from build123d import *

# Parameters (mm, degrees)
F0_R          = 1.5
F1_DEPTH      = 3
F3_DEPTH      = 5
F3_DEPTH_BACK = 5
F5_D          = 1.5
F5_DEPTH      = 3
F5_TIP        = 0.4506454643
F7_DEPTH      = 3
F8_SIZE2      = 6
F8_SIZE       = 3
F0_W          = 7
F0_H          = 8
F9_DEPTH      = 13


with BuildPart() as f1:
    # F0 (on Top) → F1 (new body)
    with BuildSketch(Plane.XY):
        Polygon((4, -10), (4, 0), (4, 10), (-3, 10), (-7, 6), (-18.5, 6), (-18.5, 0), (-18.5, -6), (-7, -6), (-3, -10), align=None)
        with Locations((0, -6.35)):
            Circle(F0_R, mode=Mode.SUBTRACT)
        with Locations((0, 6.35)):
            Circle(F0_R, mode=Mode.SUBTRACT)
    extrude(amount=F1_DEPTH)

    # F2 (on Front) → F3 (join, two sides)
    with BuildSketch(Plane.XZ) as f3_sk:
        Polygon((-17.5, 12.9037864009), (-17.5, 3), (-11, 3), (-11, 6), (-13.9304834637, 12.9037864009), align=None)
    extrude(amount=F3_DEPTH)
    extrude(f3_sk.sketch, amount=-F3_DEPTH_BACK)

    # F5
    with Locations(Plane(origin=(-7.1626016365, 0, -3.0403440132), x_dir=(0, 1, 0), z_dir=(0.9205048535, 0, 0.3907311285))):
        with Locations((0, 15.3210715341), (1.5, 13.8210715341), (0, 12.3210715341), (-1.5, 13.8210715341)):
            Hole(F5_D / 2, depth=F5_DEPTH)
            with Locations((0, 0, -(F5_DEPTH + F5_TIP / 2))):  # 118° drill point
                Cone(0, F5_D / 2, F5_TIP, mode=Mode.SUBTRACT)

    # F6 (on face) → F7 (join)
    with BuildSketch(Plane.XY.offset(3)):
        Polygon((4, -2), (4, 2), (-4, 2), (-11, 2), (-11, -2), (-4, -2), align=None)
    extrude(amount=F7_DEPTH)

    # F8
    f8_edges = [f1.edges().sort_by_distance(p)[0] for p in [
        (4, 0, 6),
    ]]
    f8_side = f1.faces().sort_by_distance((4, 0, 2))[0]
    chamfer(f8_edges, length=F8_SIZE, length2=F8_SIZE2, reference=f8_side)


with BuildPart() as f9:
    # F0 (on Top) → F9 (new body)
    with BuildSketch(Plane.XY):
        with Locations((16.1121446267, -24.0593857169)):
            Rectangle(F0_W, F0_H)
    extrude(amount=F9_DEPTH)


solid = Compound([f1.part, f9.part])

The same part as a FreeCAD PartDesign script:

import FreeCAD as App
import Part
import Sketcher
from FreeCAD import Vector
Q = App.Units.Quantity


def edges_at(feature, points):
    """Names of the edges that pass closest to the given points."""
    edges = feature.Shape.Edges
    near = lambda p: min(range(len(edges)), key=lambda i: edges[i].distToShape(Part.Vertex(*p))[0])
    return sorted({f"Edge{near(p) + 1}" for p in points})


def add_polygon(sketch, points):
    """Adds a closed chain of lines whose ends are joined by coincident constraints."""
    first, n = sketch.GeometryCount, len(points)
    for a, b in zip(points, points[1:] + points[:1]):
        sketch.addGeometry(Part.LineSegment(App.Vector(*a, 0), App.Vector(*b, 0)), False)
    for i in range(n):
        sketch.addConstraint(Sketcher.Constraint("Coincident", first + i, 2, first + (i + 1) % n, 1))

doc = App.newDocument("Part")
params = doc.addObject("Spreadsheet::Sheet", "Params")
for row, (alias, value) in enumerate([
    ("sketch1_diameter", "3 mm"),
    ("sketch1_width", "7 mm"),
    ("sketch1_height", "20 mm"),
    ("sketch1_height2", "12 mm"),
    ("sketch1_width2", "11.5 mm"),
    ("pad1_length", "3 mm"),
    ("sketch2_height", "3 mm"),
    ("sketch2_width", "6.5 mm"),
    ("sketch2_length", "7.5 mm"),
    ("pad2_length", "5 mm"),
    ("pad2_length2", "5 mm"),
    ("sketch3_diameter", "1.5 mm"),
    ("hole_diameter", "1.5 mm"),
    ("hole_depth", "3 mm"),
    ("sketch4_width", "15 mm"),
    ("sketch4_height", "4 mm"),
    ("pad3_length", "3 mm"),
    ("chamfer_size", "3 mm"),
    ("chamfer_size2", "6 mm"),
    ("sketch5_width", "7 mm"),
    ("sketch5_height", "8 mm"),
    ("pad4_length", "13 mm"),
], start=1):
    params.set(f"A{row}", alias)
    params.set(f"B{row}", "=" + value)
    params.setAlias(f"B{row}", alias)

body = doc.addObject("PartDesign::Body", "Body")

# Sketch on XY plane
sketch1 = doc.addObject("Sketcher::SketchObject", "Sketch")
body.addObject(sketch1)
sketch1.AttachmentSupport = (doc.XY_Plane, [""])
sketch1.MapMode = "FlatFace"
add_polygon(sketch1, [(4, -10), (4, 10), (-3, 10), (-7, 6), (-18.5, 6), (-18.5, -6), (-7, -6), (-3, -10)])  # lines 0-7
sketch1.addGeometry(Part.Circle(Vector(0, -6.3, 0), Vector(0, 0, 1), 1.5), False)  # 8
sketch1.addGeometry(Part.Circle(Vector(0, 6.3, 0), Vector(0, 0, 1), 1.5), False)  # 9
sketch1.addConstraint([
    Sketcher.Constraint("Vertical", 0),
    Sketcher.Constraint("Horizontal", 1),
    Sketcher.Constraint("Horizontal", 3),
    Sketcher.Constraint("Vertical", 4),
    Sketcher.Constraint("Horizontal", 5),
    Sketcher.Constraint("Horizontal", 7),
    Sketcher.Constraint("Equal", 8, 9),
    Sketcher.Constraint("Symmetric", 8, 3, 9, 3, -1, 1),
    Sketcher.Constraint("Symmetric", 2, 2, 5, 2, -1),
    Sketcher.Constraint("Symmetric", 1, 2, 6, 2, -1),
    Sketcher.Constraint("PointOnObject", 8, 3, -2),
    Sketcher.Constraint("Perpendicular", 2, 6),
    Sketcher.Constraint("Diameter", 8, 3.0),
    Sketcher.Constraint("DistanceX", 1, 2, 1, 1, 7.0),
    Sketcher.Constraint("DistanceY", 0, 1, 0, 2, 20.0),
    Sketcher.Constraint("DistanceY", 4, 2, 4, 1, 12.0),
    Sketcher.Constraint("DistanceX", 3, 2, 3, 1, 11.5),
    Sketcher.Constraint("DistanceX", -1, 1, 0, 2, 4.0),
    Sketcher.Constraint("DistanceY", 8, 3, 9, 3, 12.7),
])
sketch1.setExpression("Constraints[20]", "Params.sketch1_diameter")
sketch1.setExpression("Constraints[21]", "Params.sketch1_width")
sketch1.setExpression("Constraints[22]", "Params.sketch1_height")
sketch1.setExpression("Constraints[23]", "Params.sketch1_height2")
sketch1.setExpression("Constraints[24]", "Params.sketch1_width2")
pad1 = doc.addObject("PartDesign::Pad", "Pad")
body.addObject(pad1)
pad1.Profile = sketch1
pad1.setExpression("Length", "Params.pad1_length")

# Sketch on XZ plane
sketch2 = doc.addObject("Sketcher::SketchObject", "Sketch001")
body.addObject(sketch2)
sketch2.AttachmentSupport = (doc.XZ_Plane, [""])
sketch2.MapMode = "FlatFace"
add_polygon(sketch2, [(-17.5, 12.9), (-17.5, 3), (-11, 3), (-11, 6), (-13.9, 12.9)])  # lines 0-4
sketch2.addConstraint([
    Sketcher.Constraint("Vertical", 0),
    Sketcher.Constraint("Horizontal", 1),
    Sketcher.Constraint("Vertical", 2),
    Sketcher.Constraint("Horizontal", 4),
    Sketcher.Constraint("DistanceY", 2, 1, 2, 2, 3.0),
    Sketcher.Constraint("Angle", 3, Q("113 deg")),
    Sketcher.Constraint("DistanceX", 1, 1, 1, 2, 6.5),
    Sketcher.Constraint("DistanceY", -1, 1, 0, 2, 3.0),
    Sketcher.Constraint("DistanceX", 1, 2, -1, 1, 11.0),
    Sketcher.Constraint("Distance", 3, 7.5),
])
sketch2.setExpression("Constraints[9]", "Params.sketch2_height")
sketch2.setExpression("Constraints[11]", "Params.sketch2_width")
sketch2.setExpression("Constraints[14]", "Params.sketch2_length")
pad2 = doc.addObject("PartDesign::Pad", "Pad001")
body.addObject(pad2)
pad2.Profile = sketch2
pad2.Type = "TwoLengths"
pad2.setExpression("Length", "Params.pad2_length")
pad2.setExpression("Length2", "Params.pad2_length2")

# Sketch on an angled plane
sketch3 = doc.addObject("Sketcher::SketchObject", "Sketch002")
body.addObject(sketch3)
sketch3.Placement = App.Placement(Vector(-7.162602, 0, -3.040344), App.Rotation(Vector(0, 1, 0), Vector(-0.390731128, 0, 0.920504853), Vector(0.920504853, 0, 0.390731128), "ZXY"))
sketch3.addGeometry([
    Part.Circle(Vector(0, 15.3, 0), Vector(0, 0, 1), 0.8),
    Part.Circle(Vector(1.5, 13.8, 0), Vector(0, 0, 1), 0.8),
    Part.Circle(Vector(0, 12.3, 0), Vector(0, 0, 1), 0.8),
    Part.Circle(Vector(-1.5, 13.8, 0), Vector(0, 0, 1), 0.8),
], False)
sketch3.addConstraint([
    Sketcher.Constraint("Equal", 0, 1),
    Sketcher.Constraint("Equal", 1, 2),
    Sketcher.Constraint("Equal", 2, 3),
    Sketcher.Constraint("Symmetric", 1, 3, 3, 3, -2),
    Sketcher.Constraint("PointOnObject", 0, 3, -2),
    Sketcher.Constraint("PointOnObject", 2, 3, -2),
    Sketcher.Constraint("Diameter", 0, 1.5),
    Sketcher.Constraint("DistanceY", 2, 3, 0, 3, 3.0),
    Sketcher.Constraint("DistanceX", 3, 3, 1, 3, 3.0),
    Sketcher.Constraint("DistanceY", 1, 3, 0, 3, 1.5),
    Sketcher.Constraint("DistanceY", -1, 1, 0, 3, 15.321072),
])
sketch3.setExpression("Constraints[6]", "Params.sketch3_diameter")
doc.recompute()
hole = doc.addObject("PartDesign::Hole", "Hole")
body.addObject(hole)
hole.Profile = sketch3
hole.ThreadType = "None"
hole.setExpression("Diameter", "Params.hole_diameter")
hole.DepthType = "Dimension"
hole.setExpression("Depth", "Params.hole_depth")
hole.DrillPoint = "Angled"
hole.DrillPointAngle = 118

# Sketch on XY plane
sketch4 = doc.addObject("Sketcher::SketchObject", "Sketch003")
body.addObject(sketch4)
sketch4.AttachmentSupport = (doc.XY_Plane, [""])
sketch4.MapMode = "FlatFace"
sketch4.AttachmentOffset = App.Placement(Vector(0, 0, 3), App.Rotation())
add_polygon(sketch4, [(4, -2), (4, 2), (-11, 2), (-11, -2)])  # lines 0-3
sketch4.addConstraint([
    Sketcher.Constraint("Vertical", 0),
    Sketcher.Constraint("Horizontal", 1),
    Sketcher.Constraint("Vertical", 2),
    Sketcher.Constraint("Horizontal", 3),
    Sketcher.Constraint("DistanceX", 1, 2, 1, 1, 15.0),
    Sketcher.Constraint("DistanceY", 0, 1, 0, 2, 4.0),
    Sketcher.Constraint("DistanceX", -1, 1, 0, 2, 4.0),
    Sketcher.Constraint("DistanceY", -1, 1, 0, 2, 2.0),
])
sketch4.setExpression("Constraints[8]", "Params.sketch4_width")
sketch4.setExpression("Constraints[9]", "Params.sketch4_height")
pad3 = doc.addObject("PartDesign::Pad", "Pad002")
body.addObject(pad3)
pad3.Profile = sketch4
pad3.setExpression("Length", "Params.pad3_length")
doc.recompute()

chamfer = doc.addObject("PartDesign::Chamfer", "Chamfer")
body.addObject(chamfer)
chamfer.Base = (pad3, edges_at(pad3, [(4, 0, 6)]))
chamfer.ChamferType = "Two distances"
chamfer.setExpression("Size", "Params.chamfer_size")
chamfer.setExpression("Size2", "Params.chamfer_size2")
chamfer.FlipDirection = True
body2 = doc.addObject("PartDesign::Body", "Body001")

# Sketch on XY plane
sketch5 = doc.addObject("Sketcher::SketchObject", "Sketch004")
body2.addObject(sketch5)
sketch5.AttachmentSupport = (doc.getObject("XY_Plane001"), [""])
sketch5.MapMode = "FlatFace"
add_polygon(sketch5, [(13, -20), (13, -28), (20, -28), (20, -20)])  # lines 0-3
sketch5.addConstraint([
    Sketcher.Constraint("Vertical", 0),
    Sketcher.Constraint("Horizontal", 1),
    Sketcher.Constraint("Vertical", 2),
    Sketcher.Constraint("Horizontal", 3),
    Sketcher.Constraint("DistanceX", 1, 1, 1, 2, 7.0),
    Sketcher.Constraint("DistanceY", 0, 2, 0, 1, 8.0),
    Sketcher.Constraint("DistanceX", -1, 1, 0, 2, 12.612145),
    Sketcher.Constraint("DistanceY", 0, 2, -1, 1, 28.059386),
])
sketch5.setExpression("Constraints[8]", "Params.sketch5_width")
sketch5.setExpression("Constraints[9]", "Params.sketch5_height")
pad4 = doc.addObject("PartDesign::Pad", "Pad003")
body2.addObject(pad4)
pad4.Profile = sketch5
pad4.setExpression("Length", "Params.pad4_length")

doc.recompute()
